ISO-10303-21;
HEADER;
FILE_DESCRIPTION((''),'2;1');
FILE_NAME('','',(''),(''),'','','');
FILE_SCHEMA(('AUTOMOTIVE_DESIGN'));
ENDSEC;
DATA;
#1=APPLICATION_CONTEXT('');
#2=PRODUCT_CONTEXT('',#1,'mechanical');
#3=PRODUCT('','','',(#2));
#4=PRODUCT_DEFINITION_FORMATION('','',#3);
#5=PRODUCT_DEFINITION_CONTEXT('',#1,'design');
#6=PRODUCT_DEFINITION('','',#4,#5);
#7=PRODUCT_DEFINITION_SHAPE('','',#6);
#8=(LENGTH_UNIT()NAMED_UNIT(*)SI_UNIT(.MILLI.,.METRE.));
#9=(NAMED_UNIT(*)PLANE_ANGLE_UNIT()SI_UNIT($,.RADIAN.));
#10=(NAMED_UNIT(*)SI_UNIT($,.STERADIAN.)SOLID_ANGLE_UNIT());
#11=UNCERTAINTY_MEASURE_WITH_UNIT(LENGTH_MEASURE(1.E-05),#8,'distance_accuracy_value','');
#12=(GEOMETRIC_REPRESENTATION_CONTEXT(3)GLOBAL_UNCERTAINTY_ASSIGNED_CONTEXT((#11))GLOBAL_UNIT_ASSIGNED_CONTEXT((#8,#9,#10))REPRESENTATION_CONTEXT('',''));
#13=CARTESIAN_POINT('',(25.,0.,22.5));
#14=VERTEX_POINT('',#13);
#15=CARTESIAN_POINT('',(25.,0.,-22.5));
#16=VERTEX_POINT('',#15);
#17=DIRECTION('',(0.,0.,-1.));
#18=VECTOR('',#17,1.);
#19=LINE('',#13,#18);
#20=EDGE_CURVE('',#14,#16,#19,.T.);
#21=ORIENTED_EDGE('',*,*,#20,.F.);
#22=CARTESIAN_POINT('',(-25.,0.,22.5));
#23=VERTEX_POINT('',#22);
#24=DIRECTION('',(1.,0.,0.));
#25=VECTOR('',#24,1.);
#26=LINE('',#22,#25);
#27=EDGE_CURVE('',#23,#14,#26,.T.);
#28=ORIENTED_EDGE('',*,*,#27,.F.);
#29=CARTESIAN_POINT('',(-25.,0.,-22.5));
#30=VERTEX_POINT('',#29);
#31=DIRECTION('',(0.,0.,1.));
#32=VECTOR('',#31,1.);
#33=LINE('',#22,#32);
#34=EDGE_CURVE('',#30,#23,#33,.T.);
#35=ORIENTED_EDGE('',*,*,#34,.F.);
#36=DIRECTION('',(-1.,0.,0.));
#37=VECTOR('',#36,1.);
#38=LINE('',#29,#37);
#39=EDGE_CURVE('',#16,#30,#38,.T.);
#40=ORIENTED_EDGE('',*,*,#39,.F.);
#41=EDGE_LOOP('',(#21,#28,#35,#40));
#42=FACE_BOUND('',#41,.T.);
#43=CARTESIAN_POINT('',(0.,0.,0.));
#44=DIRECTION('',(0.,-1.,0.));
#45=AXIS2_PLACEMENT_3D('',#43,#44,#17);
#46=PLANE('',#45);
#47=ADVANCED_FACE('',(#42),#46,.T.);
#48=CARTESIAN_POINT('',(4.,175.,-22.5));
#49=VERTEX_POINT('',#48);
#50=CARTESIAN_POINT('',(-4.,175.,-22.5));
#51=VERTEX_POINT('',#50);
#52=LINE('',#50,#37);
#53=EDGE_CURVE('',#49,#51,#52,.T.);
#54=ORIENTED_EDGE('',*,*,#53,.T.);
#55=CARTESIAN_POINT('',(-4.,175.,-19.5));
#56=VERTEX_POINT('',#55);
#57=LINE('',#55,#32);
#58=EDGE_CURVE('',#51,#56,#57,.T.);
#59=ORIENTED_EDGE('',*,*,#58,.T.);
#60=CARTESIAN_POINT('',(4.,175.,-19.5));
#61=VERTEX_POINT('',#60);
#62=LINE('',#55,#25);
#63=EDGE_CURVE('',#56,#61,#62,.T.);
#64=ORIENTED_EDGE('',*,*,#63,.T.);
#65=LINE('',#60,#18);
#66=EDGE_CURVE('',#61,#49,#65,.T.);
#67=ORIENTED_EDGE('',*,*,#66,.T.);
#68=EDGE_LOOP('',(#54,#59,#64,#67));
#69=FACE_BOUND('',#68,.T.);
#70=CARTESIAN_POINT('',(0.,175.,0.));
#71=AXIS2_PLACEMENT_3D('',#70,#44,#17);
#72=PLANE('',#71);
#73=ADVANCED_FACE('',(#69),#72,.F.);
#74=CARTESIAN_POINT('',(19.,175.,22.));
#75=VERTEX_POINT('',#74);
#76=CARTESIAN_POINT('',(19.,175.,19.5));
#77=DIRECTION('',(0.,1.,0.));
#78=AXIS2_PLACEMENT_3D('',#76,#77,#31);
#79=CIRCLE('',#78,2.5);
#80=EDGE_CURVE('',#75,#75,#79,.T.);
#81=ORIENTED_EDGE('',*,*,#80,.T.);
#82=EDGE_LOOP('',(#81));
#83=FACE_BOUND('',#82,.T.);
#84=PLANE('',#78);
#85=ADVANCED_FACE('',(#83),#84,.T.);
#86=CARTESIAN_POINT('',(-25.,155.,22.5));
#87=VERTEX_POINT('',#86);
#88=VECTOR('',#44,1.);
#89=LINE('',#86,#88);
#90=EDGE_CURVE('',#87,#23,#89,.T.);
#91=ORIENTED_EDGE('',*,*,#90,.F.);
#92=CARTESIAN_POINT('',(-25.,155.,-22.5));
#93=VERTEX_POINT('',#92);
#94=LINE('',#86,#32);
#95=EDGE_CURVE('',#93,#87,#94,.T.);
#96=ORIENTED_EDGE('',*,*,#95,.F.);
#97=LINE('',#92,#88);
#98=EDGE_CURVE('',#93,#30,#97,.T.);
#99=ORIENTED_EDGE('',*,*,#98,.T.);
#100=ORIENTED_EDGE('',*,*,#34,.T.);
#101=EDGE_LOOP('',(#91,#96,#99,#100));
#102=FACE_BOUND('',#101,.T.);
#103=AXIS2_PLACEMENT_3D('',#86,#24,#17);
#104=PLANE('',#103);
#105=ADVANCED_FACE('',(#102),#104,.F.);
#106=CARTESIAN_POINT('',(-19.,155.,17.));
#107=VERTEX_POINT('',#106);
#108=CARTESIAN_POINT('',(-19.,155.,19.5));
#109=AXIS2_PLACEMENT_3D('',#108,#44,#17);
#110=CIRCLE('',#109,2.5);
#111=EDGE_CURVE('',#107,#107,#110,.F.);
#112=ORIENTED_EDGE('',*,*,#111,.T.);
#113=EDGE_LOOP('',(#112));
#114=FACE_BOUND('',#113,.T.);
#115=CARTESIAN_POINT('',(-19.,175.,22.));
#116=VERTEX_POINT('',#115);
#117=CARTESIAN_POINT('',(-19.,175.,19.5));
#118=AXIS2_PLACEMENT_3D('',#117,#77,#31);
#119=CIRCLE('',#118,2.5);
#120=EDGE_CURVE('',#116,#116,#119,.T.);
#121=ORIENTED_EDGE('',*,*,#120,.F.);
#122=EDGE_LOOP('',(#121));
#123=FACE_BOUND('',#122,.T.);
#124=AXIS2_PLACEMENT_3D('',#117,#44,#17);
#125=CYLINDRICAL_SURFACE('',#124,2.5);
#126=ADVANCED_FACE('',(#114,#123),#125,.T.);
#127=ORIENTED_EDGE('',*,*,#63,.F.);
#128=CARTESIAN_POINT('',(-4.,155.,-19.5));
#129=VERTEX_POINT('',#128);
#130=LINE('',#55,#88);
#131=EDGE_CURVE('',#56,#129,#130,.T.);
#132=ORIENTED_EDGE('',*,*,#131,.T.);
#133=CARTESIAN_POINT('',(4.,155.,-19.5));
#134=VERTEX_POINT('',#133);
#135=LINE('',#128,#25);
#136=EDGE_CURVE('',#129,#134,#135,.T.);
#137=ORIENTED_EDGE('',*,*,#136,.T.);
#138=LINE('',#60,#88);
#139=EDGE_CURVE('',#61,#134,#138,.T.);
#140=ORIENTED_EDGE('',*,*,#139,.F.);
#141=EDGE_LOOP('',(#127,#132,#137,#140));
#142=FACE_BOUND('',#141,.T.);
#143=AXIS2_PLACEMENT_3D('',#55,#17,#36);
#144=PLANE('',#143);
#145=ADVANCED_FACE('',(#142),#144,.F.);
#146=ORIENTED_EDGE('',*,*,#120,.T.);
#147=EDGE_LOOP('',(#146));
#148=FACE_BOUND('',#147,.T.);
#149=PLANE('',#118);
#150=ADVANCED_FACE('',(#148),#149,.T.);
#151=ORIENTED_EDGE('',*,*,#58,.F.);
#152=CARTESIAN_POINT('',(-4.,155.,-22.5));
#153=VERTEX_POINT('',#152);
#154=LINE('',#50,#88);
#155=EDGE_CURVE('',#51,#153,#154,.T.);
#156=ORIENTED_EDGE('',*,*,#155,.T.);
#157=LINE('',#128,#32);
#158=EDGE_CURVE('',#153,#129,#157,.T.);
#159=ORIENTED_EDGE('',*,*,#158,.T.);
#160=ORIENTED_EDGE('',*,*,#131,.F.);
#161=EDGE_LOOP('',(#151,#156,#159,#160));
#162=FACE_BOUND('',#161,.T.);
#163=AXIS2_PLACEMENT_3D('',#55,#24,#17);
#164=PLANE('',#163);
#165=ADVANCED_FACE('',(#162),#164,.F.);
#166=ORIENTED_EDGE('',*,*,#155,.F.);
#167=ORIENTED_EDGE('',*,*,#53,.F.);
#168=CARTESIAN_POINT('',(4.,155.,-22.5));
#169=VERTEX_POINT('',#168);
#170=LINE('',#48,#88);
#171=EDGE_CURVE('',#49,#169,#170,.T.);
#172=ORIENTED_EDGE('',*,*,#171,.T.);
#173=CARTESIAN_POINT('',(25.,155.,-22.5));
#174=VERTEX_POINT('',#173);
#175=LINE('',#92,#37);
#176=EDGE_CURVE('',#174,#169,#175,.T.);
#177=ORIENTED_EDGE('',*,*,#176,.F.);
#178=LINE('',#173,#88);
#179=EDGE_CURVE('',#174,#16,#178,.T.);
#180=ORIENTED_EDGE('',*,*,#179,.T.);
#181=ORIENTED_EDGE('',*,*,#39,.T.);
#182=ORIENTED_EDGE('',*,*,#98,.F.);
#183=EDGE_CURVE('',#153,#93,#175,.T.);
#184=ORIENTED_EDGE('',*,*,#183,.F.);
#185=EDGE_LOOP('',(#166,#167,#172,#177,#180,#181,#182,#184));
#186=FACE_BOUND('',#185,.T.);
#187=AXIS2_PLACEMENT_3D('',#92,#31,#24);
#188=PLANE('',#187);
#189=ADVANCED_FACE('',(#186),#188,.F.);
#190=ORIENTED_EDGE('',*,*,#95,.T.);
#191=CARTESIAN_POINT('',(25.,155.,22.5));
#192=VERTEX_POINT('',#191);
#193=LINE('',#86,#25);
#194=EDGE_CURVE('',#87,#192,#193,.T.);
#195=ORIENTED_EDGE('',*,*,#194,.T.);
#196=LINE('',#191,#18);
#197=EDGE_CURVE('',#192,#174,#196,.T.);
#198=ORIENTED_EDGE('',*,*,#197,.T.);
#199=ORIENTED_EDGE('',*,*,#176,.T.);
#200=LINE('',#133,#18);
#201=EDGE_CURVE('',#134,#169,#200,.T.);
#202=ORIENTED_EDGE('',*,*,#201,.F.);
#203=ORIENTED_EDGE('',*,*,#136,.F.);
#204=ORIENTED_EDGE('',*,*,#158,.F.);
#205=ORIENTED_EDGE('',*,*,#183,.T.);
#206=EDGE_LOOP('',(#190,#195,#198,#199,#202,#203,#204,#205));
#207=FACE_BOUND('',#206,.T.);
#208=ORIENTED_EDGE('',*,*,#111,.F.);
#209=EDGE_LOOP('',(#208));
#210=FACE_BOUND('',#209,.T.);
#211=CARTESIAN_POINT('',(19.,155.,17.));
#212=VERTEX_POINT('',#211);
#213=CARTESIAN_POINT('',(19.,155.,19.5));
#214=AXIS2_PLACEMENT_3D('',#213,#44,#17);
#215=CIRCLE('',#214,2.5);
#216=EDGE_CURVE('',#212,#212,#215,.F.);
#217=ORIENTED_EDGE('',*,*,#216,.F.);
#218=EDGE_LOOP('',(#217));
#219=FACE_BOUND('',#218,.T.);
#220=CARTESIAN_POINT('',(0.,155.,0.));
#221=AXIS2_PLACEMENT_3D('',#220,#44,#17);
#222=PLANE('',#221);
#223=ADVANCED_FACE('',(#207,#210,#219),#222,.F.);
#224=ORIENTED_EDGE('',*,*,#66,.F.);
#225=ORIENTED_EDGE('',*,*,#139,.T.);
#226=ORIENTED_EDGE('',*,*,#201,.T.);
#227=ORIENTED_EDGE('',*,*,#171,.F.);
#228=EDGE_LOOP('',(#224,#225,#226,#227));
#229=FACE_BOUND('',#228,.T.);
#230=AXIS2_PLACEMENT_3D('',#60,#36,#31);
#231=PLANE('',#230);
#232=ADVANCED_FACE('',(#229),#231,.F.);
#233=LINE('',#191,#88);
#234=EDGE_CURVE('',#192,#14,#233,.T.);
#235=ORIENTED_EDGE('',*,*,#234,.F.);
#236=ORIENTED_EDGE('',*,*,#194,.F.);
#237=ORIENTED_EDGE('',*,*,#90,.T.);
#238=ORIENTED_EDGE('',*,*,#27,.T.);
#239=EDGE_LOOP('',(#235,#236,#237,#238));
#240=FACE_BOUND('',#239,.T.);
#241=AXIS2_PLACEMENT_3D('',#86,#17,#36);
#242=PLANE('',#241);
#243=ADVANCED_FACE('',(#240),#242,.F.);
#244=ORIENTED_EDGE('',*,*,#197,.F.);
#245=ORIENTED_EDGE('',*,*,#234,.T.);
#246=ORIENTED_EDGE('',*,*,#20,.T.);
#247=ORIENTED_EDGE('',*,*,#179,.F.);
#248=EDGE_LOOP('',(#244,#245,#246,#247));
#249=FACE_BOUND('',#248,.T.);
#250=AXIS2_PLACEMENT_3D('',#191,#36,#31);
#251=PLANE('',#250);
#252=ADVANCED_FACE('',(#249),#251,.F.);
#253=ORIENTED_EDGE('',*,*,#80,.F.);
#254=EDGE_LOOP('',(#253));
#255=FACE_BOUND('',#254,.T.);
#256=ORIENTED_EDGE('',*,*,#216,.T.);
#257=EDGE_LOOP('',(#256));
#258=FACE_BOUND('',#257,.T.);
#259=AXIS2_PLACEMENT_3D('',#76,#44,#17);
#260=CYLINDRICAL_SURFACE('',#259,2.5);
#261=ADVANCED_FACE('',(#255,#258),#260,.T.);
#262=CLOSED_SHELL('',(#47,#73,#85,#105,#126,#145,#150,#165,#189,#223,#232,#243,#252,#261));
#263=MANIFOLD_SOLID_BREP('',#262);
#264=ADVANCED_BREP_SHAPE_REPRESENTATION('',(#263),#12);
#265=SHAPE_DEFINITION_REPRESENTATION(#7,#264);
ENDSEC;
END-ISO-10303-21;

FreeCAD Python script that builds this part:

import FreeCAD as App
import Part
import Sketcher
from FreeCAD import Vector
Q = App.Units.Quantity

doc = App.newDocument("Part")
body = doc.addObject("PartDesign::Body", "Body")

sketch1 = body.newObject("Sketcher::SketchObject", "Sketch")
sketch1.AttachmentSupport = (doc.getObject("XZ_Plane"), [""])
sketch1.MapMode = "FlatFace"
sketch1.addGeometry(Part.LineSegment(Vector(-25, -22.5, 0), Vector(-25, 22.5, 0)), False)
sketch1.addGeometry(Part.LineSegment(Vector(-25, 22.5, 0), Vector(25, 22.5, 0)), False)
sketch1.addGeometry(Part.LineSegment(Vector(25, 22.5, 0), Vector(25, -22.5, 0)), False)
sketch1.addGeometry(Part.LineSegment(Vector(25, -22.5, 0), Vector(-25, -22.5, 0)), False)
sketch1.addConstraint(Sketcher.Constraint("Coincident", 0, 2, 1, 1))
sketch1.addConstraint(Sketcher.Constraint("Coincident", 1, 2, 2, 1))
sketch1.addConstraint(Sketcher.Constraint("Coincident", 2, 2, 3, 1))
sketch1.addConstraint(Sketcher.Constraint("Coincident", 3, 2, 0, 1))
sketch1.addConstraint(Sketcher.Constraint("Vertical", 0))
sketch1.addConstraint(Sketcher.Constraint("Horizontal", 1))
sketch1.addConstraint(Sketcher.Constraint("Vertical", 2))
sketch1.addConstraint(Sketcher.Constraint("Horizontal", 3))
sketch1.addConstraint(Sketcher.Constraint("Symmetric", 0, 2, 2, 2, -1, 1))
sketch1.addConstraint(Sketcher.Constraint("DistanceX", 1, 1, 1, 2, Q("50 mm")))
sketch1.addConstraint(Sketcher.Constraint("DistanceY", 0, 1, 0, 2, Q("45 mm")))
pad1 = body.newObject("PartDesign::Pad", "Pad")
pad1.Profile = sketch1
pad1.Length = 155
pad1.Reversed = True

sketch2 = body.newObject("Sketcher::SketchObject", "Sketch001")
sketch2.AttachmentSupport = (doc.getObject("XZ_Plane"), [""])
sketch2.MapMode = "FlatFace"
sketch2.AttachmentOffset = App.Placement(Vector(0, 0, -155), App.Rotation())
sketch2.addGeometry(Part.Circle(Vector(-19, 19.5, 0), Vector(0, 0, 1), 2.5), False)
sketch2.addGeometry(Part.Circle(Vector(19, 19.5, 0), Vector(0, 0, 1), 2.5), False)
sketch2.addGeometry(Part.LineSegment(Vector(-4, -22.5, 0), Vector(-4, -19.5, 0)), False)
sketch2.addGeometry(Part.LineSegment(Vector(-4, -19.5, 0), Vector(4, -19.5, 0)), False)
sketch2.addGeometry(Part.LineSegment(Vector(4, -19.5, 0), Vector(4, -22.5, 0)), False)
sketch2.addGeometry(Part.LineSegment(Vector(4, -22.5, 0), Vector(-4, -22.5, 0)), False)
sketch2.addConstraint(Sketcher.Constraint("Coincident", 2, 2, 3, 1))
sketch2.addConstraint(Sketcher.Constraint("Coincident", 3, 2, 4, 1))
sketch2.addConstraint(Sketcher.Constraint("Coincident", 4, 2, 5, 1))
sketch2.addConstraint(Sketcher.Constraint("Coincident", 5, 2, 2, 1))
sketch2.addConstraint(Sketcher.Constraint("Vertical", 2))
sketch2.addConstraint(Sketcher.Constraint("Horizontal", 3))
sketch2.addConstraint(Sketcher.Constraint("Vertical", 4))
sketch2.addConstraint(Sketcher.Constraint("Horizontal", 5))
sketch2.addConstraint(Sketcher.Constraint("Equal", 0, 1))
sketch2.addConstraint(Sketcher.Constraint("Symmetric", 0, 3, 1, 3, -2))
sketch2.addConstraint(Sketcher.Constraint("Diameter", 0, Q("5 mm")))
sketch2.addConstraint(Sketcher.Constraint("DistanceX", 3, 1, 3, 2, Q("8 mm")))
sketch2.addConstraint(Sketcher.Constraint("DistanceY", 2, 1, 2, 2, Q("3 mm")))
sketch2.addConstraint(Sketcher.Constraint("DistanceX", 0, 3, -1, 1, Q("19 mm")))
sketch2.addConstraint(Sketcher.Constraint("DistanceX", 2, 2, -1, 1, Q("4 mm")))
sketch2.addConstraint(Sketcher.Constraint("DistanceY", 2, 2, 0, 3, Q("39 mm")))
sketch2.addConstraint(Sketcher.Constraint("DistanceY", -1, 1, 0, 3, Q("19.5 mm")))
pad2 = body.newObject("PartDesign::Pad", "Pad001")
pad2.Profile = sketch2
pad2.Length = 20
pad2.Reversed = True

doc.recompute()
